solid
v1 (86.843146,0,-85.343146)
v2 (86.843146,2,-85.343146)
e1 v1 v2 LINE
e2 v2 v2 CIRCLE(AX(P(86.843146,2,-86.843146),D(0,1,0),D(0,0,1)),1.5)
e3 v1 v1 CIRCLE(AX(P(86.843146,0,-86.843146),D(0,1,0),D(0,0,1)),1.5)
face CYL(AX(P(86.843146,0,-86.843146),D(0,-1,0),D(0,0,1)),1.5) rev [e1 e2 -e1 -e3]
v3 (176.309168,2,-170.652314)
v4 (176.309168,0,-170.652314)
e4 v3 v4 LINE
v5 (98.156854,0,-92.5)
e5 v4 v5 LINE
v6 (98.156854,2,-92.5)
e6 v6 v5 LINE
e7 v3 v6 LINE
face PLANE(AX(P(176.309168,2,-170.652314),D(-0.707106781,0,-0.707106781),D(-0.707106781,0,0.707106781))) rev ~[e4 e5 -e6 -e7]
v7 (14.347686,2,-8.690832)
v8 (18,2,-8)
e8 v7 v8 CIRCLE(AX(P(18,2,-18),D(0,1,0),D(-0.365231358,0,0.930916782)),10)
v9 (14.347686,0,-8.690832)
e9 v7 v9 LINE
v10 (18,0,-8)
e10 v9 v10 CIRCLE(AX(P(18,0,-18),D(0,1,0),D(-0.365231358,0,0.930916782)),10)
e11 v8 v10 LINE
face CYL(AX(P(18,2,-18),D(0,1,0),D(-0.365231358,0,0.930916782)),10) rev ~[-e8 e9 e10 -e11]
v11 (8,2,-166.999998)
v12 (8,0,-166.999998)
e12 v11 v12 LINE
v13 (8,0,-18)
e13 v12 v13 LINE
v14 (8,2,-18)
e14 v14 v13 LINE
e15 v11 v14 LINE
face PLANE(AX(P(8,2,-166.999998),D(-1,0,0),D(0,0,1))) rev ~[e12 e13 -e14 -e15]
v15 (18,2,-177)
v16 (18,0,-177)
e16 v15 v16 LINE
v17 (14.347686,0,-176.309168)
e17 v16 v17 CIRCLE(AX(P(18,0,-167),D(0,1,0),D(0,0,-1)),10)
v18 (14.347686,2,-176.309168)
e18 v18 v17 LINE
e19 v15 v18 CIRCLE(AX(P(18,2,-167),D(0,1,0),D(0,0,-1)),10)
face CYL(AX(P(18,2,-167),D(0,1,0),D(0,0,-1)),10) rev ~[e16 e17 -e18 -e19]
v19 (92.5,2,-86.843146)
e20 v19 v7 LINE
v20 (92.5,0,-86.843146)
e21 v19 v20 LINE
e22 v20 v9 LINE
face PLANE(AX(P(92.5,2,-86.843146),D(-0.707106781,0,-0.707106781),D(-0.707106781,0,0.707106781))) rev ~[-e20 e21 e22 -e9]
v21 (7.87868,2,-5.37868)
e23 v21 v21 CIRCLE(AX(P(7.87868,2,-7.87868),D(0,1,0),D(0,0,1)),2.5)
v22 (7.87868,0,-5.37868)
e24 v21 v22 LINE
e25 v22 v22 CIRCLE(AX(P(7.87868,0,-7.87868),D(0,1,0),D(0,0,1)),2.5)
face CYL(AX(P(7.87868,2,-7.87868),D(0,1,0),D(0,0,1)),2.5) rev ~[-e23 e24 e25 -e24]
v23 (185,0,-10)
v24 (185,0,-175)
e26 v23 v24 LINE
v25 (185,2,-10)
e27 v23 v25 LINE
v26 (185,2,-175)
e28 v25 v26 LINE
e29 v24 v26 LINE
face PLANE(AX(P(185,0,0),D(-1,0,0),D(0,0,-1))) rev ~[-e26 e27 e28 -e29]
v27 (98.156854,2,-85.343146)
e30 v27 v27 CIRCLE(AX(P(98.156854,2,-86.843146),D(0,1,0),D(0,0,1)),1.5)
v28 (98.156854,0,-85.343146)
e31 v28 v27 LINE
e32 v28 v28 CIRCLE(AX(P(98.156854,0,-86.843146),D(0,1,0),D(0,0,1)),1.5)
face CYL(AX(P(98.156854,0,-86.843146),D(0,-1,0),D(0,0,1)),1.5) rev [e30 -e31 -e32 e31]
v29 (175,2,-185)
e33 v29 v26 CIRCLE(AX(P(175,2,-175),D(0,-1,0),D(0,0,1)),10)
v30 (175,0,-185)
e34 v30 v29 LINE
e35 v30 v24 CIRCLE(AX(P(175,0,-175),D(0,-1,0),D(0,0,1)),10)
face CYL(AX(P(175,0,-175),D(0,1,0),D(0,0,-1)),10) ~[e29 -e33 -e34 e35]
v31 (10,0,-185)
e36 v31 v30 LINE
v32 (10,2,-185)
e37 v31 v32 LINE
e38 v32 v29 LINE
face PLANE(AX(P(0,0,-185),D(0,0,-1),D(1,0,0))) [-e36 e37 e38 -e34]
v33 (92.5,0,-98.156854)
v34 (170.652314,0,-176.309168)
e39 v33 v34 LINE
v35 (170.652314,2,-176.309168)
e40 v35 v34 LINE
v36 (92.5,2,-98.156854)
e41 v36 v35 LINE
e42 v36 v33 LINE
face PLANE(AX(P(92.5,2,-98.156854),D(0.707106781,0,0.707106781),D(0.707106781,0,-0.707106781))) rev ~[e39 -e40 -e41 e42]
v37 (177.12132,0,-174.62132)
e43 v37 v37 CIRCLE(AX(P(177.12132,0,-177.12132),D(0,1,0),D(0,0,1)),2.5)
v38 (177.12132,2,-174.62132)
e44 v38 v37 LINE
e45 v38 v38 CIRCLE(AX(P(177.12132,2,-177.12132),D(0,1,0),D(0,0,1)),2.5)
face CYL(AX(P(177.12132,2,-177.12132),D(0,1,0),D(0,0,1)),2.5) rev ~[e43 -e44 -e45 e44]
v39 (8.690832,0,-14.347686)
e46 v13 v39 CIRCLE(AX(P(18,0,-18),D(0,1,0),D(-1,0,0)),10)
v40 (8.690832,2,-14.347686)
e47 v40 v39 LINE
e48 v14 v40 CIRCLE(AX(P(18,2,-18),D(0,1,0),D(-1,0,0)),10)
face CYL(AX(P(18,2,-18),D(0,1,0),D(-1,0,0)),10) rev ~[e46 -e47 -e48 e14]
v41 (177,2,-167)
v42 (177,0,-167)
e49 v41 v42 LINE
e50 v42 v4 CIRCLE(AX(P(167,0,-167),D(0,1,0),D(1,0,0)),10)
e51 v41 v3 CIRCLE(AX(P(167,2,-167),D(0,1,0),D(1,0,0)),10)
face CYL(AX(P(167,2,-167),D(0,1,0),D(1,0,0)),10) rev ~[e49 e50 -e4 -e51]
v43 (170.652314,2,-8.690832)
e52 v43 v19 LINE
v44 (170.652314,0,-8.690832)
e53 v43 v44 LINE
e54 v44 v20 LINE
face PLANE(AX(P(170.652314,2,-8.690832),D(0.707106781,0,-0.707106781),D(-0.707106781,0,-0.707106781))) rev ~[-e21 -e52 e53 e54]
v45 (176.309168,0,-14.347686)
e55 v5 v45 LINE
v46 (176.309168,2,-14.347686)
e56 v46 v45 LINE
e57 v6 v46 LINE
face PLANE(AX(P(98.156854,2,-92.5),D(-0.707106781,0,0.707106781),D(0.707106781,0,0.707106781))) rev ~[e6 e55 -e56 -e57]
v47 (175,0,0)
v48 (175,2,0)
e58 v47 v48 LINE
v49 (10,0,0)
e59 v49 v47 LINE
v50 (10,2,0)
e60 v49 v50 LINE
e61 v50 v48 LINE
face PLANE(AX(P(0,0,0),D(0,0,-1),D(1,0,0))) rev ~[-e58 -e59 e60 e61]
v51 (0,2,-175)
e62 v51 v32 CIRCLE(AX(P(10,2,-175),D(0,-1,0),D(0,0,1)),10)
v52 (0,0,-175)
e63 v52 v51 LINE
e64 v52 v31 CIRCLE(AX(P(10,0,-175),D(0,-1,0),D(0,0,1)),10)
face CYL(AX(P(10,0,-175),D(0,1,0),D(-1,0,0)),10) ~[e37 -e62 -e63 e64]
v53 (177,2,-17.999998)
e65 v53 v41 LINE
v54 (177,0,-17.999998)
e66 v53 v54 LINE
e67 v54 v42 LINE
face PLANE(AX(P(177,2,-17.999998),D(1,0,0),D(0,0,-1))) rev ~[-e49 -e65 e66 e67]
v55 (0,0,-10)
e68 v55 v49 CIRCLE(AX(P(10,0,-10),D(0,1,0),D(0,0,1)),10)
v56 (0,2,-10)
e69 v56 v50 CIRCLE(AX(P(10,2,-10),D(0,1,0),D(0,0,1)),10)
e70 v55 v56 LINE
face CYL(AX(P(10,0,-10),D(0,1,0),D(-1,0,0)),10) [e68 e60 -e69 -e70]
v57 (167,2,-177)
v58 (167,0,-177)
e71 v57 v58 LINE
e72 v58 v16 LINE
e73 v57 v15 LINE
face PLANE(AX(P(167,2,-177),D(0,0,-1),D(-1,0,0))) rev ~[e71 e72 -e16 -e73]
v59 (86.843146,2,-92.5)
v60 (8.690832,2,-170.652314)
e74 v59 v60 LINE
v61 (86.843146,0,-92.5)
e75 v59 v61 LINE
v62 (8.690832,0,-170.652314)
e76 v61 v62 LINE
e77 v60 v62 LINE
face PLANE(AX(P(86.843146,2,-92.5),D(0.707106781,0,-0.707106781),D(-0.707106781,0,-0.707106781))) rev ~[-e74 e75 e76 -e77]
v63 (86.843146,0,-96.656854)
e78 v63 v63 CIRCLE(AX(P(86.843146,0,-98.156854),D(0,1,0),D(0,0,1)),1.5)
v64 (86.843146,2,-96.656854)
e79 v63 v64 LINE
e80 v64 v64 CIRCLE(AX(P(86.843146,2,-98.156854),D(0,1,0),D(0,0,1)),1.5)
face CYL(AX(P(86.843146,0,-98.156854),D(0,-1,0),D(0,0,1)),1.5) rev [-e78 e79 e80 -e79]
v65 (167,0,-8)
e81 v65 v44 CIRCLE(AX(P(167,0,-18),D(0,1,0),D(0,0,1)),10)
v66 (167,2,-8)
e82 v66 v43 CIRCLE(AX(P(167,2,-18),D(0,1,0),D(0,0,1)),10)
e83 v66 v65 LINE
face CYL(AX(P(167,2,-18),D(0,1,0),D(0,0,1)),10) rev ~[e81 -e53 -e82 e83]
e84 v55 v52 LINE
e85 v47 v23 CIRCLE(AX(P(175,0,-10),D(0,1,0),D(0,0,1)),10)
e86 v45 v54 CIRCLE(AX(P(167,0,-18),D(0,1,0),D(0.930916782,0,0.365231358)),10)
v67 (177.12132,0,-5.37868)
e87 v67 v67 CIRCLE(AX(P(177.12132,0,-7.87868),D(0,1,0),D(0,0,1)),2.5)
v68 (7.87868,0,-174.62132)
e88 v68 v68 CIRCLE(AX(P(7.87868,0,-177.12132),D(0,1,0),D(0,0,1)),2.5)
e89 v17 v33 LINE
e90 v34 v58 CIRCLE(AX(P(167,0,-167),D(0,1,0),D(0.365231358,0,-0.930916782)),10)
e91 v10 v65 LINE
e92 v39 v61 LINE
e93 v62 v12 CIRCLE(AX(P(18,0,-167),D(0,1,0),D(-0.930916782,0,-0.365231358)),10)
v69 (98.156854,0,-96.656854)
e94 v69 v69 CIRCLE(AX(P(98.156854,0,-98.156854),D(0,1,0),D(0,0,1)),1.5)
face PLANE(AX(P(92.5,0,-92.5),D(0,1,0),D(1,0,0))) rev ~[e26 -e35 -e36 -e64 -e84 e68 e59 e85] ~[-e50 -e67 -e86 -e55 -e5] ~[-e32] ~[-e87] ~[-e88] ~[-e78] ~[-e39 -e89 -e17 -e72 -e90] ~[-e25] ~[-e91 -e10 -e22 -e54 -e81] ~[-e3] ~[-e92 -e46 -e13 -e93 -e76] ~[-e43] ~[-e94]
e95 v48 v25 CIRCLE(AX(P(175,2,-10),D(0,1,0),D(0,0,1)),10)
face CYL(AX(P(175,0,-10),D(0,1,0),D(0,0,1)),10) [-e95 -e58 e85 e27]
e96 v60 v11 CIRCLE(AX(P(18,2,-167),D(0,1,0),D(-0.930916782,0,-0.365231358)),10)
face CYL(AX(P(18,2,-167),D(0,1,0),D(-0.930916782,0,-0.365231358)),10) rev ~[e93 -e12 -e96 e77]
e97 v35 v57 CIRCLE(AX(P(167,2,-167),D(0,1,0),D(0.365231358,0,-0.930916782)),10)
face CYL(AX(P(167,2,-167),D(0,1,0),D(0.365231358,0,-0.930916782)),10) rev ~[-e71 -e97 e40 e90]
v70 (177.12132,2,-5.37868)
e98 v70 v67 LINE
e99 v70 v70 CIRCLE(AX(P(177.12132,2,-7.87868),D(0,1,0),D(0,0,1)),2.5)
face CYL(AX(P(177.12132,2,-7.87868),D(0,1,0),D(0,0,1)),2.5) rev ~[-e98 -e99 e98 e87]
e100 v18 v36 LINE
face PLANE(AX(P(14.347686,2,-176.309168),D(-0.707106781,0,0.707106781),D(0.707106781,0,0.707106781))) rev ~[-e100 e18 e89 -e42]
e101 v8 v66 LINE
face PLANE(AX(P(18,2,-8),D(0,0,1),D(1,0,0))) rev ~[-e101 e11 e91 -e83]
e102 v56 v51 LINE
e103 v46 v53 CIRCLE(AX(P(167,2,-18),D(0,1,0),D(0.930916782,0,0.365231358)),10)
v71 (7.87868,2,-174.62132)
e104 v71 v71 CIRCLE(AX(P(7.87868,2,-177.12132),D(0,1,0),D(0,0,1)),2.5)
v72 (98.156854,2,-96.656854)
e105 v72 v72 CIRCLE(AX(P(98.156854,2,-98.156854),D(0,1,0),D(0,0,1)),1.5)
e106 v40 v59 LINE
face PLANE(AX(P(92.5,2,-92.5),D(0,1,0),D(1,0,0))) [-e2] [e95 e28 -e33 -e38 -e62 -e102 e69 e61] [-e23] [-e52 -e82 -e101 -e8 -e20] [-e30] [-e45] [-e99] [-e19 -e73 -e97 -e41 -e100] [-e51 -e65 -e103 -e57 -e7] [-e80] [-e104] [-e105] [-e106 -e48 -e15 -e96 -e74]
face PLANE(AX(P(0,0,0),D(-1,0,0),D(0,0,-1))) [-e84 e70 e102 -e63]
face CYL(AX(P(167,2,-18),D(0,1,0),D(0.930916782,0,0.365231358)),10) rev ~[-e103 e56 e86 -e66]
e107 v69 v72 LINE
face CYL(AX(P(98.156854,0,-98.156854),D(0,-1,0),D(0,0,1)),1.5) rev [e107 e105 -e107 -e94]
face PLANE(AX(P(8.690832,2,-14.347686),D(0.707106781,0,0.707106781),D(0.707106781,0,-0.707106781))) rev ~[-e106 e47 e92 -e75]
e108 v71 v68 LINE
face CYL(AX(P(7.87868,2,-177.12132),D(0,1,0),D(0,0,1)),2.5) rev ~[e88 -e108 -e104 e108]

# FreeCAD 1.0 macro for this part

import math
import FreeCAD as App
import Part
import Sketcher

V = App.Vector
Q = App.Units.Quantity


def edges_at(feature, points):
    """Names of the edges that pass closest to the given points."""
    edges = feature.Shape.Edges
    near = lambda p: min(range(len(edges)), key=lambda i: edges[i].distToShape(Part.Vertex(*p))[0])
    return sorted({f"Edge{near(p) + 1}" for p in points})


def add_polygon(sketch, points):
    """Adds a closed chain of lines whose ends are joined by coincident constraints."""
    first, n = sketch.GeometryCount, len(points)
    for a, b in zip(points, points[1:] + points[:1]):
        sketch.addGeometry(Part.LineSegment(App.Vector(*a, 0), App.Vector(*b, 0)), False)
    for i in range(n):
        sketch.addConstraint(Sketcher.Constraint("Coincident", first + i, 2, first + (i + 1) % n, 1))

doc = App.newDocument("Part")
body = doc.addObject("PartDesign::Body", "Body")

sketch1 = body.newObject("Sketcher::SketchObject", "Sketch")
sketch1.AttachmentSupport = (doc.getObject("XZ_Plane"), [""])
sketch1.MapMode = "FlatFace"
add_polygon(sketch1, [(0, -185), (0, 0), (185, 0), (185, -185)])
sketch1.addGeometry(Part.Circle(V(86.8, -86.8, 0), V(0, 0, 1), 1.5), False)
sketch1.addGeometry(Part.Circle(V(98.2, -86.8, 0), V(0, 0, 1), 1.5), False)
sketch1.addGeometry(Part.Circle(V(86.8, -98.2, 0), V(0, 0, 1), 1.5), False)
sketch1.addGeometry(Part.Circle(V(98.2, -98.2, 0), V(0, 0, 1), 1.5), False)
sketch1.addConstraint(Sketcher.Constraint("Vertical", 0))
sketch1.addConstraint(Sketcher.Constraint("Horizontal", 1))
sketch1.addConstraint(Sketcher.Constraint("Vertical", 2))
sketch1.addConstraint(Sketcher.Constraint("Horizontal", 3))
sketch1.addConstraint(Sketcher.Constraint("Coincident", 0, 2, -1, 1))
sketch1.addConstraint(Sketcher.Constraint("Equal", 4, 5))
sketch1.addConstraint(Sketcher.Constraint("Equal", 5, 6))
sketch1.addConstraint(Sketcher.Constraint("Equal", 6, 7))
sketch1.addConstraint(Sketcher.Constraint("Horizontal", 4, 3, 5, 3))
sketch1.addConstraint(Sketcher.Constraint("Horizontal", 6, 3, 7, 3))
sketch1.addConstraint(Sketcher.Constraint("Vertical", 4, 3, 6, 3))
sketch1.addConstraint(Sketcher.Constraint("Vertical", 5, 3, 7, 3))
sketch1.addConstraint(Sketcher.Constraint("Equal", 3, 0))
sketch1.addConstraint(Sketcher.Constraint("Diameter", 4, Q("3 mm")))
sketch1.addConstraint(Sketcher.Constraint("DistanceX", 1, 1, 1, 2, Q("185 mm")))
sketch1.addConstraint(Sketcher.Constraint("DistanceX", 4, 3, 5, 3, Q("11.313708 mm")))
sketch1.addConstraint(Sketcher.Constraint("DistanceY", 6, 3, 4, 3, Q("11.313708 mm")))
sketch1.addConstraint(Sketcher.Constraint("DistanceX", -1, 1, 4, 3, Q("86.843146 mm")))
sketch1.addConstraint(Sketcher.Constraint("DistanceY", 4, 3, -1, 1, Q("86.843146 mm")))
pad1 = body.newObject("PartDesign::Pad", "Pad")
pad1.Profile = sketch1
pad1.Length = 2
pad1.Reversed = True

sketch2 = body.newObject("Sketcher::SketchObject", "Sketch001")
sketch2.AttachmentSupport = (doc.getObject("XZ_Plane"), [""])
sketch2.MapMode = "FlatFace"
sketch2.AttachmentOffset = App.Placement(V(0, 0, -2), App.Rotation())
sketch2.addGeometry(Part.ArcOfCircle(Part.Circle(V(18, -167, 0), V(0, 0, 1), 10), math.radians(-111), math.radians(-90)), False)
sketch2.addGeometry(Part.LineSegment(V(14.3, -176.3, 0), V(92.5, -98.2, 0)), False)
sketch2.addGeometry(Part.LineSegment(V(92.5, -98.2, 0), V(170.7, -176.3, 0)), False)
sketch2.addGeometry(Part.ArcOfCircle(Part.Circle(V(167, -167, 0), V(0, 0, 1), 10), math.radians(-90), math.radians(-69)), False)
sketch2.addGeometry(Part.LineSegment(V(167, -177, 0), V(18, -177, 0)), False)
sketch2.addGeometry(Part.LineSegment(V(86.8, -92.5, 0), V(8.7, -170.7, 0)), False)
sketch2.addGeometry(Part.ArcOfCircle(Part.Circle(V(18, -167, 0), V(0, 0, 1), 10), math.radians(180), math.radians(201)), False)
sketch2.addGeometry(Part.LineSegment(V(8, -167, 0), V(8, -18, 0)), False)
sketch2.addGeometry(Part.ArcOfCircle(Part.Circle(V(18, -18, 0), V(0, 0, 1), 10), math.radians(159), math.radians(180)), False)
sketch2.addGeometry(Part.LineSegment(V(8.7, -14.3, 0), V(86.8, -92.5, 0)), False)
sketch2.addGeometry(Part.LineSegment(V(170.7, -8.7, 0), V(92.5, -86.8, 0)), False)
sketch2.addGeometry(Part.LineSegment(V(92.5, -86.8, 0), V(14.3, -8.7, 0)), False)
sketch2.addGeometry(Part.ArcOfCircle(Part.Circle(V(18, -18, 0), V(0, 0, 1), 10), math.radians(90), math.radians(111)), False)
sketch2.addGeometry(Part.LineSegment(V(18, -8, 0), V(167, -8, 0)), False)
sketch2.addGeometry(Part.ArcOfCircle(Part.Circle(V(167, -18, 0), V(0, 0, 1), 10), math.radians(69), math.radians(90)), False)
sketch2.addGeometry(Part.LineSegment(V(176.3, -170.7, 0), V(98.2, -92.5, 0)), False)
sketch2.addGeometry(Part.LineSegment(V(98.2, -92.5, 0), V(176.3, -14.3, 0)), False)
sketch2.addGeometry(Part.ArcOfCircle(Part.Circle(V(167, -18, 0), V(0, 0, 1), 10), math.radians(0), math.radians(21)), False)
sketch2.addGeometry(Part.LineSegment(V(177, -18, 0), V(177, -167, 0)), False)
sketch2.addGeometry(Part.ArcOfCircle(Part.Circle(V(167, -167, 0), V(0, 0, 1), 10), math.radians(-21), math.radians(0)), False)
sketch2.addConstraint(Sketcher.Constraint("Coincident", 0, 1, 1, 1))
sketch2.addConstraint(Sketcher.Constraint("Coincident", 1, 2, 2, 1))
sketch2.addConstraint(Sketcher.Constraint("Coincident", 2, 2, 3, 2))
sketch2.addConstraint(Sketcher.Constraint("Tangent", 3, 1, 4, 1))
sketch2.addConstraint(Sketcher.Constraint("Tangent", 4, 2, 0, 2))
sketch2.addConstraint(Sketcher.Constraint("Coincident", 5, 2, 6, 2))
sketch2.addConstraint(Sketcher.Constraint("Tangent", 6, 1, 7, 1))
sketch2.addConstraint(Sketcher.Constraint("Tangent", 7, 2, 8, 2))
sketch2.addConstraint(Sketcher.Constraint("Coincident", 8, 1, 9, 1))
sketch2.addConstraint(Sketcher.Constraint("Coincident", 9, 2, 5, 1))
sketch2.addConstraint(Sketcher.Constraint("Coincident", 10, 2, 11, 1))
sketch2.addConstraint(Sketcher.Constraint("Coincident", 11, 2, 12, 2))
sketch2.addConstraint(Sketcher.Constraint("Tangent", 12, 1, 13, 1))
sketch2.addConstraint(Sketcher.Constraint("Tangent", 13, 2, 14, 2))
sketch2.addConstraint(Sketcher.Constraint("Coincident", 14, 1, 10, 1))
sketch2.addConstraint(Sketcher.Constraint("Coincident", 15, 2, 16, 1))
sketch2.addConstraint(Sketcher.Constraint("Coincident", 16, 2, 17, 2))
sketch2.addConstraint(Sketcher.Constraint("Tangent", 17, 1, 18, 1))
sketch2.addConstraint(Sketcher.Constraint("Tangent", 18, 2, 19, 2))
sketch2.addConstraint(Sketcher.Constraint("Coincident", 19, 1, 15, 1))
sketch2.addConstraint(Sketcher.Constraint("Horizontal", 4))
sketch2.addConstraint(Sketcher.Constraint("Vertical", 7))
sketch2.addConstraint(Sketcher.Constraint("Horizontal", 13))
sketch2.addConstraint(Sketcher.Constraint("Vertical", 18))
sketch2.addConstraint(Sketcher.Constraint("Coincident", 6, 3, 0, 3))
sketch2.addConstraint(Sketcher.Constraint("Coincident", 12, 3, 8, 3))
sketch2.addConstraint(Sketcher.Constraint("Coincident", 17, 3, 14, 3))
sketch2.addConstraint(Sketcher.Constraint("Coincident", 19, 3, 3, 3))
sketch2.addConstraint(Sketcher.Constraint("Equal", 0, 3))
sketch2.addConstraint(Sketcher.Constraint("Equal", 3, 6))
sketch2.addConstraint(Sketcher.Constraint("Equal", 6, 8))
sketch2.addConstraint(Sketcher.Constraint("Equal", 8, 12))
sketch2.addConstraint(Sketcher.Constraint("Equal", 12, 14))
sketch2.addConstraint(Sketcher.Constraint("Equal", 14, 17))
sketch2.addConstraint(Sketcher.Constraint("Equal", 17, 19))
sketch2.addConstraint(Sketcher.Constraint("Perpendicular", 1, 2))
sketch2.addConstraint(Sketcher.Constraint("Perpendicular", 2, 5))
sketch2.addConstraint(Sketcher.Constraint("Perpendicular", 5, 9))
sketch2.addConstraint(Sketcher.Constraint("Perpendicular", 9, 10))
sketch2.addConstraint(Sketcher.Constraint("Perpendicular", 10, 11))
sketch2.addConstraint(Sketcher.Constraint("Parallel", 11, 15))
sketch2.addConstraint(Sketcher.Constraint("Perpendicular", 15, 16))
sketch2.addConstraint(Sketcher.Constraint("Horizontal", 0, 1, 2, 2))
sketch2.addConstraint(Sketcher.Constraint("Horizontal", 11, 2, 14, 1))
sketch2.addConstraint(Sketcher.Constraint("Horizontal", 9, 2, 15, 2))
sketch2.addConstraint(Sketcher.Constraint("Horizontal", 8, 1, 16, 2))
sketch2.addConstraint(Sketcher.Constraint("Horizontal", 5, 2, 19, 1))
sketch2.addConstraint(Sketcher.Constraint("Vertical", 5, 2, 8, 1))
sketch2.addConstraint(Sketcher.Constraint("Vertical", 0, 1, 11, 2))
sketch2.addConstraint(Sketcher.Constraint("Equal", 2, 5))
sketch2.addConstraint(Sketcher.Constraint("Radius", 0, Q("10 mm")))
sketch2.addConstraint(Sketcher.Constraint("DistanceX", 4, 2, 4, 1, Q("149 mm")))
sketch2.addConstraint(Sketcher.Constraint("DistanceX", -1, 1, 0, 3, Q("18 mm")))
sketch2.addConstraint(Sketcher.Constraint("DistanceY", 0, 3, -1, 1, Q("167 mm")))
sketch2.addConstraint(Sketcher.Constraint("DistanceY", 8, 3, -1, 1, Q("18 mm")))
sketch2.addConstraint(Sketcher.Constraint("Distance", 1, Q("110.524062 mm")))
pocket1 = body.newObject("PartDesign::Pocket", "Pocket")
pocket1.Profile = sketch2
pocket1.Length = 2
pocket1.Reversed = True
doc.recompute()

fillet = body.newObject("PartDesign::Fillet", "Fillet")
fillet.Base = (pocket1, edges_at(pocket1, [
    (0, 1, -185),
    (185, 1, -185),
    (185, 1, 0),
    (0, 1, 0),
]))
fillet.Radius = 10

sketch3 = body.newObject("Sketcher::SketchObject", "Sketch002")
sketch3.AttachmentSupport = (doc.getObject("XZ_Plane"), [""])
sketch3.MapMode = "FlatFace"
sketch3.AttachmentOffset = App.Placement(V(0, 0, -2), App.Rotation())
sketch3.addGeometry(Part.Circle(V(7.9, -177.1, 0), V(0, 0, 1), 2.5), False)
sketch3.addGeometry(Part.Circle(V(177.1, -177.1, 0), V(0, 0, 1), 2.5), False)
sketch3.addGeometry(Part.Circle(V(177.1, -7.9, 0), V(0, 0, 1), 2.5), False)
sketch3.addGeometry(Part.Circle(V(7.9, -7.9, 0), V(0, 0, 1), 2.5), False)
sketch3.addConstraint(Sketcher.Constraint("Equal", 0, 1))
sketch3.addConstraint(Sketcher.Constraint("Equal", 1, 2))
sketch3.addConstraint(Sketcher.Constraint("Equal", 2, 3))
sketch3.addConstraint(Sketcher.Constraint("Horizontal", 0, 3, 1, 3))
sketch3.addConstraint(Sketcher.Constraint("Horizontal", 2, 3, 3, 3))
sketch3.addConstraint(Sketcher.Constraint("Vertical", 1, 3, 2, 3))
sketch3.addConstraint(Sketcher.Constraint("Vertical", 0, 3, 3, 3))
sketch3.addConstraint(Sketcher.Constraint("Diameter", 0, Q("5 mm")))
sketch3.addConstraint(Sketcher.Constraint("DistanceX", -1, 1, 0, 3, Q("7.87868 mm")))
sketch3.addConstraint(Sketcher.Constraint("DistanceY", 0, 3, -1, 1, Q("177.12132 mm")))
sketch3.addConstraint(Sketcher.Constraint("DistanceX", -1, 1, 1, 3, Q("177.12132 mm")))
sketch3.addConstraint(Sketcher.Constraint("DistanceY", 2, 3, -1, 1, Q("7.87868 mm")))
pocket2 = body.newObject("PartDesign::Pocket", "Pocket001")
pocket2.Profile = sketch3
pocket2.Type = "ThroughAll"
pocket2.Reversed = True

doc.recompute()
